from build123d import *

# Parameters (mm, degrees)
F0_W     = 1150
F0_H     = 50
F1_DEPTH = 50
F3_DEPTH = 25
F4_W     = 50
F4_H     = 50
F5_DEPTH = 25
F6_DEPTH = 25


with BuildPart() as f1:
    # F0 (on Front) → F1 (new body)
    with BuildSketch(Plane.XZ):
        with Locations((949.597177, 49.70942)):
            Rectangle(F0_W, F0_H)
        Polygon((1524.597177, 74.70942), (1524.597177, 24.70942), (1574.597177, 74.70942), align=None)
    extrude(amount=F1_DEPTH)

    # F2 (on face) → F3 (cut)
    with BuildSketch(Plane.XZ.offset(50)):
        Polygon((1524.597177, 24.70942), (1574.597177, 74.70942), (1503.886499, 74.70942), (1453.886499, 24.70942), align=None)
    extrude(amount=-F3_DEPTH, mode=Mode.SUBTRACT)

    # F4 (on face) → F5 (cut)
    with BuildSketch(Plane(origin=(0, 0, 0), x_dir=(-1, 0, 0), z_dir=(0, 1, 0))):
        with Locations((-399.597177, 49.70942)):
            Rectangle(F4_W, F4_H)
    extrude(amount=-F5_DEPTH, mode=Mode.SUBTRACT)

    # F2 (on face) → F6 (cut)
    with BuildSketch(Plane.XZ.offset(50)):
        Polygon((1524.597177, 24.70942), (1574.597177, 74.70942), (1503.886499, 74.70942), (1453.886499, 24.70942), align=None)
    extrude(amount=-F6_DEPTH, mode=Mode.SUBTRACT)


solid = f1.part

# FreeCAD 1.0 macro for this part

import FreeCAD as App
import Part
import Sketcher
from FreeCAD import Vector
Q = App.Units.Quantity


def add_polygon(sketch, points):
    """Adds a closed chain of lines whose ends are joined by coincident constraints."""
    first, n = sketch.GeometryCount, len(points)
    for a, b in zip(points, points[1:] + points[:1]):
        sketch.addGeometry(Part.LineSegment(App.Vector(*a, 0), App.Vector(*b, 0)), False)
    for i in range(n):
        sketch.addConstraint(Sketcher.Constraint("Coincident", first + i, 2, first + (i + 1) % n, 1))

doc = App.newDocument("Part")
body = doc.addObject("PartDesign::Body", "Body")

# Sketch on XZ plane
sketch1 = body.newObject("Sketcher::SketchObject", "Sketch")
sketch1.AttachmentSupport = (doc.getObject("XZ_Plane"), [""])
sketch1.MapMode = "FlatFace"
add_polygon(sketch1, [(374.597177, 74.70942), (374.597177, 24.70942), (1524.597177, 24.70942), (1574.597177, 74.70942)])  # lines 0-3
sketch1.addConstraint(Sketcher.Constraint("Vertical", 0))
sketch1.addConstraint(Sketcher.Constraint("Horizontal", 1))
sketch1.addConstraint(Sketcher.Constraint("Horizontal", 3))
sketch1.addConstraint(Sketcher.Constraint("DistanceX", 1, 1, 1, 2, Q("1150 mm")))
sketch1.addConstraint(Sketcher.Constraint("DistanceX", 3, 2, 3, 1, Q("1200 mm")))
sketch1.addConstraint(Sketcher.Constraint("DistanceY", 0, 2, 0, 1, Q("50 mm")))
sketch1.addConstraint(Sketcher.Constraint("DistanceY", -1, 1, 0, 2, Q("24.70942 mm")))
sketch1.addConstraint(Sketcher.Constraint("DistanceX", -1, 1, 0, 2, Q("374.597177 mm")))
pad1 = body.newObject("PartDesign::Pad", "Pad")
pad1.Profile = sketch1
pad1.Length = 50

# Sketch on XZ plane
sketch2 = body.newObject("Sketcher::SketchObject", "Sketch001")
sketch2.AttachmentSupport = (doc.getObject("XZ_Plane"), [""])
sketch2.MapMode = "FlatFace"
sketch2.AttachmentOffset = App.Placement(Vector(0, 0, 50), App.Rotation())
add_polygon(sketch2, [(1524.597177, 24.70942), (1574.597177, 74.70942), (1503.886499, 74.70942), (1453.886499, 24.70942)])  # lines 0-3
sketch2.addConstraint(Sketcher.Constraint("Horizontal", 1))
sketch2.addConstraint(Sketcher.Constraint("Horizontal", 3))
sketch2.addConstraint(Sketcher.Constraint("Parallel", 0, 2))
sketch2.addConstraint(Sketcher.Constraint("Angle", 0, Q("45 deg")))
sketch2.addConstraint(Sketcher.Constraint("DistanceX", 2, 2, 1, 2, Q("50 mm")))
sketch2.addConstraint(Sketcher.Constraint("DistanceX", 1, 2, 1, 1, Q("70.710678 mm")))
sketch2.addConstraint(Sketcher.Constraint("DistanceX", -1, 1, 1, 2, Q("1503.886499 mm")))
sketch2.addConstraint(Sketcher.Constraint("DistanceY", -1, 1, 0, 2, Q("74.70942 mm")))
pocket1 = body.newObject("PartDesign::Pocket", "Pocket")
pocket1.Profile = sketch2
pocket1.Length = 25

# Sketch on XZ plane
sketch3 = body.newObject("Sketcher::SketchObject", "Sketch002")
sketch3.AttachmentSupport = (doc.getObject("XZ_Plane"), [""])
sketch3.MapMode = "FlatFace"
add_polygon(sketch3, [(424.597177, 74.70942), (424.597177, 24.70942), (374.597177, 24.70942), (374.597177, 74.70942)])  # lines 0-3
sketch3.addConstraint(Sketcher.Constraint("Vertical", 0))
sketch3.addConstraint(Sketcher.Constraint("Horizontal", 1))
sketch3.addConstraint(Sketcher.Constraint("Vertical", 2))
sketch3.addConstraint(Sketcher.Constraint("Horizontal", 3))
sketch3.addConstraint(Sketcher.Constraint("Equal", 3, 0))
sketch3.addConstraint(Sketcher.Constraint("DistanceX", 1, 2, 1, 1, Q("50 mm")))
sketch3.addConstraint(Sketcher.Constraint("DistanceY", -1, 1, 0, 2, Q("24.70942 mm")))
sketch3.addConstraint(Sketcher.Constraint("DistanceX", -1, 1, 0, 2, Q("424.597177 mm")))
pocket2 = body.newObject("PartDesign::Pocket", "Pocket001")
pocket2.Profile = sketch3
pocket2.Length = 25
pocket2.Reversed = True

# Sketch on XZ plane
sketch4 = body.newObject("Sketcher::SketchObject", "Sketch003")
sketch4.AttachmentSupport = (doc.getObject("XZ_Plane"), [""])
sketch4.MapMode = "FlatFace"
sketch4.AttachmentOffset = App.Placement(Vector(0, 0, 50), App.Rotation())
add_polygon(sketch4, [(1524.597177, 24.70942), (1574.597177, 74.70942), (1503.886499, 74.70942), (1453.886499, 24.70942)])  # lines 0-3
sketch4.addConstraint(Sketcher.Constraint("Horizontal", 1))
sketch4.addConstraint(Sketcher.Constraint("Horizontal", 3))
sketch4.addConstraint(Sketcher.Constraint("Parallel", 0, 2))
sketch4.addConstraint(Sketcher.Constraint("Angle", 0, Q("45 deg")))
sketch4.addConstraint(Sketcher.Constraint("DistanceX", 2, 2, 1, 2, Q("50 mm")))
sketch4.addConstraint(Sketcher.Constraint("DistanceX", 1, 2, 1, 1, Q("70.710678 mm")))
sketch4.addConstraint(Sketcher.Constraint("DistanceX", -1, 1, 1, 2, Q("1503.886499 mm")))
sketch4.addConstraint(Sketcher.Constraint("DistanceY", -1, 1, 0, 2, Q("74.70942 mm")))
pocket3 = body.newObject("PartDesign::Pocket", "Pocket002")
pocket3.Profile = sketch4
pocket3.Length = 25

doc.recompute()
